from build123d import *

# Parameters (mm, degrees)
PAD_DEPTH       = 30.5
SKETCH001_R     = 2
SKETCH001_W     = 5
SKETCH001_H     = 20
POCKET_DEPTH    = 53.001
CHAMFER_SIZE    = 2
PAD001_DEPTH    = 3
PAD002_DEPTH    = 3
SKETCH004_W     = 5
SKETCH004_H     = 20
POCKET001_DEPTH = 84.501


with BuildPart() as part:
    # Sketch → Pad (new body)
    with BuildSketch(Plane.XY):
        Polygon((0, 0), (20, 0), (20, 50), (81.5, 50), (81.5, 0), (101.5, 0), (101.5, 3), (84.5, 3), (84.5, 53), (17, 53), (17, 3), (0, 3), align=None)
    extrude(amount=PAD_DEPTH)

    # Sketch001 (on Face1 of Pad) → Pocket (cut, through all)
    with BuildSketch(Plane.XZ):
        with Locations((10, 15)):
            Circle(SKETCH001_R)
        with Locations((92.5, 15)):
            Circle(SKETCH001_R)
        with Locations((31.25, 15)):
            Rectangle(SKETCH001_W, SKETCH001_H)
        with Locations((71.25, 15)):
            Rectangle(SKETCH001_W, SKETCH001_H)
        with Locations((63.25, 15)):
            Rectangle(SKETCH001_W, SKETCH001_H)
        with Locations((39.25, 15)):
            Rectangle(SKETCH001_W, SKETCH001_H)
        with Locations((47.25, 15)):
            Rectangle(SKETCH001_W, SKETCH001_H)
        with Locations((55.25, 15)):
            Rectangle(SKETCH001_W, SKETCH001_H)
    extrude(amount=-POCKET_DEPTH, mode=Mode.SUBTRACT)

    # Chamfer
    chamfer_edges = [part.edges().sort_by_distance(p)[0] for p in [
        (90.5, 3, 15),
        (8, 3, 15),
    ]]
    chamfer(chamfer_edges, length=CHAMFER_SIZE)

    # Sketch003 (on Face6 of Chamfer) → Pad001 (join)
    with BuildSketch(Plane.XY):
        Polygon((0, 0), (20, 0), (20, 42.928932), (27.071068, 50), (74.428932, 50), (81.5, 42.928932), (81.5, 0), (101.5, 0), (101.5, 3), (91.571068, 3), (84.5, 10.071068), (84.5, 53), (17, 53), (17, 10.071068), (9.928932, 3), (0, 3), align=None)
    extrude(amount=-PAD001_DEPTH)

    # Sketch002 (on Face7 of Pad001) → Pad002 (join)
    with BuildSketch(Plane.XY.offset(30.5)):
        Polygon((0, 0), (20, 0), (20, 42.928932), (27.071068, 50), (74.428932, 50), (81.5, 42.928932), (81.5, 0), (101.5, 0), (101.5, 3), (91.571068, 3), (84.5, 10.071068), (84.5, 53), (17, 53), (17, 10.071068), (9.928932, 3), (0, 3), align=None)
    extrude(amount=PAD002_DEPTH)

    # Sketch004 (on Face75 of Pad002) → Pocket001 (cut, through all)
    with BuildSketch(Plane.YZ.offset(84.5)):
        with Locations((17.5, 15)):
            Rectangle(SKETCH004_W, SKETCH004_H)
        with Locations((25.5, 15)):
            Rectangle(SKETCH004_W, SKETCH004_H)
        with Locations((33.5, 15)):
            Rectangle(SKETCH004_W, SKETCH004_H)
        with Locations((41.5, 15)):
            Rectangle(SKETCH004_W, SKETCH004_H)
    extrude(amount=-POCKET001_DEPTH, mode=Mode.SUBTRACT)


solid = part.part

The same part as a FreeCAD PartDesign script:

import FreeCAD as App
import Part
import Sketcher
Q = App.Units.Quantity


def edges_at(feature, points):
    """Names of the edges that pass closest to the given points."""
    edges = feature.Shape.Edges
    near = lambda p: min(range(len(edges)), key=lambda i: edges[i].distToShape(Part.Vertex(*p))[0])
    return sorted({f"Edge{near(p) + 1}" for p in points})


def add_polygon(sketch, points):
    """Adds a closed chain of lines whose ends are joined by coincident constraints."""
    first, n = sketch.GeometryCount, len(points)
    for a, b in zip(points, points[1:] + points[:1]):
        sketch.addGeometry(Part.LineSegment(App.Vector(*a, 0), App.Vector(*b, 0)), False)
    for i in range(n):
        sketch.addConstraint(Sketcher.Constraint("Coincident", first + i, 2, first + (i + 1) % n, 1))

doc = App.newDocument("Part")
params = doc.addObject("Spreadsheet::Sheet", "Params")
for row, (alias, value) in enumerate([
    ("sketch1_width", "20 mm"),
    ("sketch1_width2", "17 mm"),
    ("sketch1_height", "50 mm"),
    ("sketch1_height2", "3 mm"),
    ("sketch1_width3", "61.5 mm"),
    ("pad1_length", "30.5 mm"),
    ("sketch2_diameter", "4 mm"),
    ("sketch2_width", "5 mm"),
    ("sketch2_height", "20 mm"),
    ("chamfer_size", "2 mm"),
    ("sketch3_width", "20 mm"),
    ("sketch3_height", "3 mm"),
    ("sketch3_length", "10 mm"),
    ("sketch3_width2", "67.5 mm"),
    ("pad2_length", "3 mm"),
    ("sketch4_width", "20 mm"),
    ("sketch4_height", "3 mm"),
    ("sketch4_length", "10 mm"),
    ("sketch4_width2", "67.5 mm"),
    ("pad3_length", "3 mm"),
    ("sketch5_width", "5 mm"),
    ("sketch5_height", "20 mm"),
], start=1):
    params.set(f"A{row}", alias)
    params.set(f"B{row}", "=" + value)
    params.setAlias(f"B{row}", alias)

body = doc.addObject("PartDesign::Body", "Body")

sketch1 = doc.addObject("Sketcher::SketchObject", "Sketch")
body.addObject(sketch1)
sketch1.AttachmentSupport = (doc.XY_Plane, [""])
sketch1.MapMode = "FlatFace"
add_polygon(sketch1, [(0, 0), (20, 0), (20, 50), (81.5, 50), (81.5, 0), (101.5, 0), (101.5, 3), (84.5, 3), (84.5, 53), (17, 53), (17, 3), (0, 3)])
sketch1.addConstraint(Sketcher.Constraint("Horizontal", 0))
sketch1.addConstraint(Sketcher.Constraint("Vertical", 1))
sketch1.addConstraint(Sketcher.Constraint("Horizontal", 2))
sketch1.addConstraint(Sketcher.Constraint("Vertical", 3))
sketch1.addConstraint(Sketcher.Constraint("Horizontal", 4))
sketch1.addConstraint(Sketcher.Constraint("Vertical", 5))
sketch1.addConstraint(Sketcher.Constraint("Horizontal", 6))
sketch1.addConstraint(Sketcher.Constraint("Vertical", 7))
sketch1.addConstraint(Sketcher.Constraint("Horizontal", 8))
sketch1.addConstraint(Sketcher.Constraint("Vertical", 9))
sketch1.addConstraint(Sketcher.Constraint("Horizontal", 10))
sketch1.addConstraint(Sketcher.Constraint("Vertical", 11))
sketch1.addConstraint(Sketcher.Constraint("Coincident", 11, 2, -1, 1))
sketch1.addConstraint(Sketcher.Constraint("PointOnObject", 3, 2, -1))
sketch1.addConstraint(Sketcher.Constraint("Horizontal", 6, 2, 9, 2))
sketch1.addConstraint(Sketcher.Constraint("Equal", 0, 4))
sketch1.addConstraint(Sketcher.Constraint("Equal", 6, 10))
sketch1.addConstraint(Sketcher.Constraint("Equal", 3, 7))
sketch1.addConstraint(Sketcher.Constraint("DistanceX", 0, 1, 0, 2, Q("20 mm")))
sketch1.addConstraint(Sketcher.Constraint("DistanceX", 6, 2, 6, 1, Q("17 mm")))
sketch1.addConstraint(Sketcher.Constraint("DistanceY", 1, 1, 1, 2, Q("50 mm")))
sketch1.addConstraint(Sketcher.Constraint("DistanceY", 5, 1, 5, 2, Q("3 mm")))
sketch1.addConstraint(Sketcher.Constraint("DistanceX", 2, 1, 2, 2, Q("61.5 mm")))
sketch1.setExpression("Constraints[30]", "Params.sketch1_width")
sketch1.setExpression("Constraints[31]", "Params.sketch1_width2")
sketch1.setExpression("Constraints[32]", "Params.sketch1_height")
sketch1.setExpression("Constraints[33]", "Params.sketch1_height2")
sketch1.setExpression("Constraints[34]", "Params.sketch1_width3")
pad1 = doc.addObject("PartDesign::Pad", "Pad")
body.addObject(pad1)
pad1.Profile = sketch1
pad1.setExpression("Length", "Params.pad1_length")

sketch2 = doc.addObject("Sketcher::SketchObject", "Sketch001")
body.addObject(sketch2)
sketch2.AttachmentSupport = (doc.XZ_Plane, [""])
sketch2.MapMode = "FlatFace"
sketch2.addGeometry(Part.Circle(App.Vector(10, 15, 0), App.Vector(0, 0, 1), 2), False)
sketch2.addGeometry(Part.Circle(App.Vector(92.5, 15, 0), App.Vector(0, 0, 1), 2), False)
add_polygon(sketch2, [(28.75, 25), (28.75, 5), (33.75, 5), (33.75, 25)])
add_polygon(sketch2, [(68.75, 25), (68.75, 5), (73.75, 5), (73.75, 25)])
add_polygon(sketch2, [(60.75, 25), (60.75, 5), (65.75, 5), (65.75, 25)])
add_polygon(sketch2, [(36.75, 25), (36.75, 5), (41.75, 5), (41.75, 25)])
add_polygon(sketch2, [(44.75, 25), (44.75, 5), (49.75, 5), (49.75, 25)])
add_polygon(sketch2, [(52.75, 25), (52.75, 5), (57.75, 5), (57.75, 25)])
sketch2.addConstraint(Sketcher.Constraint("Vertical", 2))
sketch2.addConstraint(Sketcher.Constraint("Horizontal", 3))
sketch2.addConstraint(Sketcher.Constraint("Vertical", 4))
sketch2.addConstraint(Sketcher.Constraint("Horizontal", 5))
sketch2.addConstraint(Sketcher.Constraint("Vertical", 6))
sketch2.addConstraint(Sketcher.Constraint("Horizontal", 7))
sketch2.addConstraint(Sketcher.Constraint("Vertical", 8))
sketch2.addConstraint(Sketcher.Constraint("Horizontal", 9))
sketch2.addConstraint(Sketcher.Constraint("Vertical", 10))
sketch2.addConstraint(Sketcher.Constraint("Horizontal", 11))
sketch2.addConstraint(Sketcher.Constraint("Vertical", 12))
sketch2.addConstraint(Sketcher.Constraint("Horizontal", 13))
sketch2.addConstraint(Sketcher.Constraint("Vertical", 14))
sketch2.addConstraint(Sketcher.Constraint("Horizontal", 15))
sketch2.addConstraint(Sketcher.Constraint("Vertical", 16))
sketch2.addConstraint(Sketcher.Constraint("Horizontal", 17))
sketch2.addConstraint(Sketcher.Constraint("Vertical", 18))
sketch2.addConstraint(Sketcher.Constraint("Horizontal", 19))
sketch2.addConstraint(Sketcher.Constraint("Vertical", 20))
sketch2.addConstraint(Sketcher.Constraint("Horizontal", 21))
sketch2.addConstraint(Sketcher.Constraint("Vertical", 22))
sketch2.addConstraint(Sketcher.Constraint("Horizontal", 23))
sketch2.addConstraint(Sketcher.Constraint("Vertical", 24))
sketch2.addConstraint(Sketcher.Constraint("Horizontal", 25))
sketch2.addConstraint(Sketcher.Constraint("Equal", 0, 1))
sketch2.addConstraint(Sketcher.Constraint("Horizontal", 0, 3, 1, 3))
sketch2.addConstraint(Sketcher.Constraint("Horizontal", 3, 2, 6, 2))
sketch2.addConstraint(Sketcher.Constraint("Horizontal", 5, 2, 8, 2))
sketch2.addConstraint(Sketcher.Constraint("Horizontal", 7, 2, 10, 2))
sketch2.addConstraint(Sketcher.Constraint("Horizontal", 9, 2, 12, 2))
sketch2.addConstraint(Sketcher.Constraint("Horizontal", 11, 2, 14, 2))
sketch2.addConstraint(Sketcher.Constraint("Horizontal", 13, 2, 16, 2))
sketch2.addConstraint(Sketcher.Constraint("Horizontal", 15, 2, 18, 2))
sketch2.addConstraint(Sketcher.Constraint("Horizontal", 17, 2, 20, 2))
sketch2.addConstraint(Sketcher.Constraint("Horizontal", 19, 2, 22, 2))
sketch2.addConstraint(Sketcher.Constraint("Horizontal", 21, 2, 24, 2))
sketch2.addConstraint(Sketcher.Constraint("Equal", 5, 7))
sketch2.addConstraint(Sketcher.Constraint("Equal", 9, 11))
sketch2.addConstraint(Sketcher.Constraint("Equal", 13, 15))
sketch2.addConstraint(Sketcher.Constraint("Equal", 17, 19))
sketch2.addConstraint(Sketcher.Constraint("Equal", 21, 23))
sketch2.addConstraint(Sketcher.Constraint("Diameter", 0, Q("4 mm")))
sketch2.addConstraint(Sketcher.Constraint("DistanceX", 3, 1, 3, 2, Q("5 mm")))
sketch2.addConstraint(Sketcher.Constraint("DistanceY", 2, 2, 2, 1, Q("20 mm")))
sketch2.addConstraint(Sketcher.Constraint("DistanceX", -1, 1, 0, 3, Q("10 mm")))
sketch2.addConstraint(Sketcher.Constraint("DistanceY", -1, 1, 0, 3, Q("15 mm")))
sketch2.addConstraint(Sketcher.Constraint("DistanceY", -1, 1, 2, 2, Q("5 mm")))
sketch2.addConstraint(Sketcher.Constraint("DistanceX", 3, 2, 6, 2, Q("35 mm")))
sketch2.addConstraint(Sketcher.Constraint("DistanceX", 10, 2, 6, 2, Q("8 mm")))
sketch2.addConstraint(Sketcher.Constraint("DistanceX", 3, 2, 14, 2, Q("3 mm")))
sketch2.addConstraint(Sketcher.Constraint("DistanceX", 15, 2, 18, 2, Q("3 mm")))
sketch2.addConstraint(Sketcher.Constraint("DistanceX", 19, 2, 22, 2, Q("3 mm")))
sketch2.addConstraint(Sketcher.Constraint("DistanceX", -1, 1, 1, 3, Q("92.5 mm")))
sketch2.addConstraint(Sketcher.Constraint("DistanceX", -1, 1, 2, 2, Q("28.75 mm")))
sketch2.setExpression("Constraints[65]", "Params.sketch2_diameter")
sketch2.setExpression("Constraints[66]", "Params.sketch2_width")
sketch2.setExpression("Constraints[67]", "Params.sketch2_height")
pocket1 = doc.addObject("PartDesign::Pocket", "Pocket")
body.addObject(pocket1)
pocket1.Profile = sketch2
pocket1.Type = "ThroughAll"
doc.recompute()

chamfer = doc.addObject("PartDesign::Chamfer", "Chamfer")
body.addObject(chamfer)
chamfer.Base = (pocket1, edges_at(pocket1, [(90.5, 3, 15), (8, 3, 15)]))
chamfer.setExpression("Size", "Params.chamfer_size")

sketch3 = doc.addObject("Sketcher::SketchObject", "Sketch002")
body.addObject(sketch3)
sketch3.AttachmentSupport = (doc.XY_Plane, [""])
sketch3.MapMode = "FlatFace"
add_polygon(sketch3, [(0, 0), (20, 0), (20, 42.928932), (27.071068, 50), (74.428932, 50), (81.5, 42.928932), (81.5, 0), (101.5, 0), (101.5, 3), (91.571068, 3), (84.5, 10.071068), (84.5, 53), (17, 53), (17, 10.071068), (9.928932, 3), (0, 3)])
sketch3.addConstraint(Sketcher.Constraint("Horizontal", 0))
sketch3.addConstraint(Sketcher.Constraint("Vertical", 1))
sketch3.addConstraint(Sketcher.Constraint("Horizontal", 3))
sketch3.addConstraint(Sketcher.Constraint("Vertical", 5))
sketch3.addConstraint(Sketcher.Constraint("Horizontal", 6))
sketch3.addConstraint(Sketcher.Constraint("Vertical", 7))
sketch3.addConstraint(Sketcher.Constraint("Horizontal", 8))
sketch3.addConstraint(Sketcher.Constraint("Vertical", 10))
sketch3.addConstraint(Sketcher.Constraint("Horizontal", 11))
sketch3.addConstraint(Sketcher.Constraint("Vertical", 12))
sketch3.addConstraint(Sketcher.Constraint("Horizontal", 14))
sketch3.addConstraint(Sketcher.Constraint("Vertical", 15))
sketch3.addConstraint(Sketcher.Constraint("Coincident", 15, 2, -1, 1))
sketch3.addConstraint(Sketcher.Constraint("PointOnObject", 5, 2, -1))
sketch3.addConstraint(Sketcher.Constraint("Perpendicular", 2, 4))
sketch3.addConstraint(Sketcher.Constraint("Parallel", 4, 9))
sketch3.addConstraint(Sketcher.Constraint("Perpendicular", 9, 13))
sketch3.addConstraint(Sketcher.Constraint("Horizontal", 1, 2, 4, 2))
sketch3.addConstraint(Sketcher.Constraint("Horizontal", 9, 2, 12, 2))
sketch3.addConstraint(Sketcher.Constraint("Horizontal", 8, 2, 13, 2))
sketch3.addConstraint(Sketcher.Constraint("Equal", 0, 6))
sketch3.addConstraint(Sketcher.Constraint("Equal", 8, 14))
sketch3.addConstraint(Sketcher.Constraint("Equal", 5, 10))
sketch3.addConstraint(Sketcher.Constraint("Equal", 2, 4))
sketch3.addConstraint(Sketcher.Constraint("Equal", 4, 9))
sketch3.addConstraint(Sketcher.Constraint("DistanceX", 0, 1, 0, 2, Q("20 mm")))
sketch3.addConstraint(Sketcher.Constraint("DistanceY", 7, 1, 7, 2, Q("3 mm")))
sketch3.addConstraint(Sketcher.Constraint("Distance", 2, Q("10 mm")))
sketch3.addConstraint(Sketcher.Constraint("DistanceX", 11, 2, 11, 1, Q("67.5 mm")))
sketch3.addConstraint(Sketcher.Constraint("DistanceY", -1, 1, 2, 2, Q("50 mm")))
sketch3.addConstraint(Sketcher.Constraint("DistanceX", -1, 1, 11, 2, Q("17 mm")))
sketch3.setExpression("Constraints[41]", "Params.sketch3_width")
sketch3.setExpression("Constraints[42]", "Params.sketch3_height")
sketch3.setExpression("Constraints[43]", "Params.sketch3_length")
sketch3.setExpression("Constraints[44]", "Params.sketch3_width2")
pad2 = doc.addObject("PartDesign::Pad", "Pad001")
body.addObject(pad2)
pad2.Profile = sketch3
pad2.setExpression("Length", "Params.pad2_length")
pad2.Reversed = True

sketch4 = doc.addObject("Sketcher::SketchObject", "Sketch003")
body.addObject(sketch4)
sketch4.AttachmentSupport = (doc.XY_Plane, [""])
sketch4.MapMode = "FlatFace"
sketch4.AttachmentOffset = App.Placement(App.Vector(0, 0, 30.5), App.Rotation())
add_polygon(sketch4, [(0, 0), (20, 0), (20, 42.928932), (27.071068, 50), (74.428932, 50), (81.5, 42.928932), (81.5, 0), (101.5, 0), (101.5, 3), (91.571068, 3), (84.5, 10.071068), (84.5, 53), (17, 53), (17, 10.071068), (9.928932, 3), (0, 3)])
sketch4.addConstraint(Sketcher.Constraint("Horizontal", 0))
sketch4.addConstraint(Sketcher.Constraint("Vertical", 1))
sketch4.addConstraint(Sketcher.Constraint("Horizontal", 3))
sketch4.addConstraint(Sketcher.Constraint("Vertical", 5))
sketch4.addConstraint(Sketcher.Constraint("Horizontal", 6))
sketch4.addConstraint(Sketcher.Constraint("Vertical", 7))
sketch4.addConstraint(Sketcher.Constraint("Horizontal", 8))
sketch4.addConstraint(Sketcher.Constraint("Vertical", 10))
sketch4.addConstraint(Sketcher.Constraint("Horizontal", 11))
sketch4.addConstraint(Sketcher.Constraint("Vertical", 12))
sketch4.addConstraint(Sketcher.Constraint("Horizontal", 14))
sketch4.addConstraint(Sketcher.Constraint("Vertical", 15))
sketch4.addConstraint(Sketcher.Constraint("Coincident", 15, 2, -1, 1))
sketch4.addConstraint(Sketcher.Constraint("PointOnObject", 5, 2, -1))
sketch4.addConstraint(Sketcher.Constraint("Perpendicular", 2, 4))
sketch4.addConstraint(Sketcher.Constraint("Parallel", 4, 9))
sketch4.addConstraint(Sketcher.Constraint("Perpendicular", 9, 13))
sketch4.addConstraint(Sketcher.Constraint("Horizontal", 1, 2, 4, 2))
sketch4.addConstraint(Sketcher.Constraint("Horizontal", 9, 2, 12, 2))
sketch4.addConstraint(Sketcher.Constraint("Horizontal", 8, 2, 13, 2))
sketch4.addConstraint(Sketcher.Constraint("Equal", 0, 6))
sketch4.addConstraint(Sketcher.Constraint("Equal", 8, 14))
sketch4.addConstraint(Sketcher.Constraint("Equal", 5, 10))
sketch4.addConstraint(Sketcher.Constraint("Equal", 2, 4))
sketch4.addConstraint(Sketcher.Constraint("Equal", 4, 9))
sketch4.addConstraint(Sketcher.Constraint("DistanceX", 0, 1, 0, 2, Q("20 mm")))
sketch4.addConstraint(Sketcher.Constraint("DistanceY", 7, 1, 7, 2, Q("3 mm")))
sketch4.addConstraint(Sketcher.Constraint("Distance", 2, Q("10 mm")))
sketch4.addConstraint(Sketcher.Constraint("DistanceX", 11, 2, 11, 1, Q("67.5 mm")))
sketch4.addConstraint(Sketcher.Constraint("DistanceY", -1, 1, 2, 2, Q("50 mm")))
sketch4.addConstraint(Sketcher.Constraint("DistanceX", -1, 1, 11, 2, Q("17 mm")))
sketch4.setExpression("Constraints[41]", "Params.sketch4_width")
sketch4.setExpression("Constraints[42]", "Params.sketch4_height")
sketch4.setExpression("Constraints[43]", "Params.sketch4_length")
sketch4.setExpression("Constraints[44]", "Params.sketch4_width2")
pad3 = doc.addObject("PartDesign::Pad", "Pad002")
body.addObject(pad3)
pad3.Profile = sketch4
pad3.setExpression("Length", "Params.pad3_length")

sketch5 = doc.addObject("Sketcher::SketchObject", "Sketch004")
body.addObject(sketch5)
sketch5.AttachmentSupport = (doc.YZ_Plane, [""])
sketch5.MapMode = "FlatFace"
sketch5.AttachmentOffset = App.Placement(App.Vector(0, 0, 84.5), App.Rotation())
add_polygon(sketch5, [(15, 25), (15, 5), (20, 5), (20, 25)])
add_polygon(sketch5, [(23, 25), (23, 5), (28, 5), (28, 25)])
add_polygon(sketch5, [(31, 25), (31, 5), (36, 5), (36, 25)])
add_polygon(sketch5, [(39, 25), (39, 5), (44, 5), (44, 25)])
sketch5.addConstraint(Sketcher.Constraint("Vertical", 0))
sketch5.addConstraint(Sketcher.Constraint("Horizontal", 1))
sketch5.addConstraint(Sketcher.Constraint("Vertical", 2))
sketch5.addConstraint(Sketcher.Constraint("Horizontal", 3))
sketch5.addConstraint(Sketcher.Constraint("Vertical", 4))
sketch5.addConstraint(Sketcher.Constraint("Horizontal", 5))
sketch5.addConstraint(Sketcher.Constraint("Vertical", 6))
sketch5.addConstraint(Sketcher.Constraint("Horizontal", 7))
sketch5.addConstraint(Sketcher.Constraint("Vertical", 8))
sketch5.addConstraint(Sketcher.Constraint("Horizontal", 9))
sketch5.addConstraint(Sketcher.Constraint("Vertical", 10))
sketch5.addConstraint(Sketcher.Constraint("Horizontal", 11))
sketch5.addConstraint(Sketcher.Constraint("Vertical", 12))
sketch5.addConstraint(Sketcher.Constraint("Horizontal", 13))
sketch5.addConstraint(Sketcher.Constraint("Vertical", 14))
sketch5.addConstraint(Sketcher.Constraint("Horizontal", 15))
sketch5.addConstraint(Sketcher.Constraint("Horizontal", 1, 2, 4, 2))
sketch5.addConstraint(Sketcher.Constraint("Horizontal", 3, 2, 6, 2))
sketch5.addConstraint(Sketcher.Constraint("Horizontal", 5, 2, 8, 2))
sketch5.addConstraint(Sketcher.Constraint("Horizontal", 7, 2, 10, 2))
sketch5.addConstraint(Sketcher.Constraint("Horizontal", 9, 2, 12, 2))
sketch5.addConstraint(Sketcher.Constraint("Horizontal", 11, 2, 14, 2))
sketch5.addConstraint(Sketcher.Constraint("Equal", 3, 5))
sketch5.addConstraint(Sketcher.Constraint("Equal", 7, 9))
sketch5.addConstraint(Sketcher.Constraint("Equal", 11, 13))
sketch5.addConstraint(Sketcher.Constraint("DistanceX", 1, 1, 1, 2, Q("5 mm")))
sketch5.addConstraint(Sketcher.Constraint("DistanceY", 0, 2, 0, 1, Q("20 mm")))
sketch5.addConstraint(Sketcher.Constraint("DistanceX", -1, 1, 0, 2, Q("15 mm")))
sketch5.addConstraint(Sketcher.Constraint("DistanceY", -1, 1, 0, 2, Q("5 mm")))
sketch5.addConstraint(Sketcher.Constraint("DistanceX", -1, 1, 4, 2, Q("23 mm")))
sketch5.addConstraint(Sketcher.Constraint("DistanceX", -1, 1, 8, 2, Q("31 mm")))
sketch5.addConstraint(Sketcher.Constraint("DistanceX", -1, 1, 12, 2, Q("39 mm")))
sketch5.setExpression("Constraints[41]", "Params.sketch5_width")
sketch5.setExpression("Constraints[42]", "Params.sketch5_height")
pocket2 = doc.addObject("PartDesign::Pocket", "Pocket001")
body.addObject(pocket2)
pocket2.Profile = sketch5
pocket2.Type = "ThroughAll"

doc.recompute()
